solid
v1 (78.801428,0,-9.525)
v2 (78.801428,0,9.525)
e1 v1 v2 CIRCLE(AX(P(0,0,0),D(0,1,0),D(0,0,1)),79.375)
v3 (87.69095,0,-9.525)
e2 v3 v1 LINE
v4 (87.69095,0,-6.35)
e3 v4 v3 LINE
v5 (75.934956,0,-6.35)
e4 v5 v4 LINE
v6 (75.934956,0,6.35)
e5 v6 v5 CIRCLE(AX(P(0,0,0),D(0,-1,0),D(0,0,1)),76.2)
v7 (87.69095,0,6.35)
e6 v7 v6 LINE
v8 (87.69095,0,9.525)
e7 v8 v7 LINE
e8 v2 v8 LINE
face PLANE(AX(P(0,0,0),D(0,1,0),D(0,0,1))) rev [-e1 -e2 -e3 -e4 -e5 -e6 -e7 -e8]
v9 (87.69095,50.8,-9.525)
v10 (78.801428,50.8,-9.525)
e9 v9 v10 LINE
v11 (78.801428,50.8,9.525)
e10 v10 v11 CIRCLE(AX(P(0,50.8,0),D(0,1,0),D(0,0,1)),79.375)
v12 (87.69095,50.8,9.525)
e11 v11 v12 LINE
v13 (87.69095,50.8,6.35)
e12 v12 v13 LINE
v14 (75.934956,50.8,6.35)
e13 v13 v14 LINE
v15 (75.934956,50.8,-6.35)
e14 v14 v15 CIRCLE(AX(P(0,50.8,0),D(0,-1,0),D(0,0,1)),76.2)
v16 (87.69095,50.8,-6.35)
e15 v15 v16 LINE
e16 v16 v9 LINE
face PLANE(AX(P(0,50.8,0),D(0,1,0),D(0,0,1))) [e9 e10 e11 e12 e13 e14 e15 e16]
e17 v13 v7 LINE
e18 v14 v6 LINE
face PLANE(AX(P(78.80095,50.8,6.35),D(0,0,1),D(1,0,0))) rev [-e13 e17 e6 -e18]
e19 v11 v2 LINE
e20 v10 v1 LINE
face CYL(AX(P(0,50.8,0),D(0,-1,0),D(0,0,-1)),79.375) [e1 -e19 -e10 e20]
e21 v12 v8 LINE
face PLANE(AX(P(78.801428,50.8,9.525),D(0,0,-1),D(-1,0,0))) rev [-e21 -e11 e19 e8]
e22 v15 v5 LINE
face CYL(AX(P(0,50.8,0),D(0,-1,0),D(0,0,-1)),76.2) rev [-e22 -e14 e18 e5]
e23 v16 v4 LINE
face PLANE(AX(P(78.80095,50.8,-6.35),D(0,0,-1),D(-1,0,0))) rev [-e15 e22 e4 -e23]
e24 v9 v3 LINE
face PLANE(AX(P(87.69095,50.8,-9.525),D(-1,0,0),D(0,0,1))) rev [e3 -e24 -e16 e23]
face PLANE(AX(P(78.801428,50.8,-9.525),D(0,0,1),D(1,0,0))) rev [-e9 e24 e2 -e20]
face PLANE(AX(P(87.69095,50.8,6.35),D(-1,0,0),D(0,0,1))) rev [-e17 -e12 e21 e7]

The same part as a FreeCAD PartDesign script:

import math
import FreeCAD as App
import Part
import Sketcher
from FreeCAD import Vector
Q = App.Units.Quantity

doc = App.newDocument("Part")
body = doc.addObject("PartDesign::Body", "Body")

# Sketch on XZ plane
sketch1 = doc.addObject("Sketcher::SketchObject", "Sketch")
body.addObject(sketch1)
sketch1.AttachmentSupport = (doc.XZ_Plane, [""])
sketch1.MapMode = "FlatFace"
sketch1.addGeometry([
    Part.LineSegment(Vector(87.7, 9.5, 0), Vector(87.7, 6.3, 0)),  # 0
    Part.LineSegment(Vector(87.7, 6.3, 0), Vector(75.9, 6.3, 0)),  # 1
    Part.ArcOfCircle(Part.Circle(Vector(0, 0, 0), Vector(0, 0, 1), 76.2), math.radians(5), math.radians(355)),  # 2
    Part.LineSegment(Vector(75.9, -6.3, 0), Vector(87.7, -6.3, 0)),  # 3
    Part.LineSegment(Vector(87.7, -6.3, 0), Vector(87.7, -9.5, 0)),  # 4
    Part.LineSegment(Vector(87.7, -9.5, 0), Vector(78.8, -9.5, 0)),  # 5
    Part.ArcOfCircle(Part.Circle(Vector(0, 0, 0), Vector(0, 0, 1), 79.4), math.radians(7), math.radians(353)),  # 6
    Part.LineSegment(Vector(78.8, 9.5, 0), Vector(87.7, 9.5, 0)),  # 7
], False)
sketch1.addConstraint([
    Sketcher.Constraint("Coincident", 0, 2, 1, 1),
    Sketcher.Constraint("Coincident", 1, 2, 2, 1),
    Sketcher.Constraint("Coincident", 2, 2, 3, 1),
    Sketcher.Constraint("Coincident", 3, 2, 4, 1),
    Sketcher.Constraint("Coincident", 4, 2, 5, 1),
    Sketcher.Constraint("Coincident", 5, 2, 6, 2),
    Sketcher.Constraint("Coincident", 6, 1, 7, 1),
    Sketcher.Constraint("Coincident", 7, 2, 0, 1),
    Sketcher.Constraint("Vertical", 0),
    Sketcher.Constraint("Horizontal", 1),
    Sketcher.Constraint("Horizontal", 3),
    Sketcher.Constraint("Vertical", 4),
    Sketcher.Constraint("Horizontal", 5),
    Sketcher.Constraint("Horizontal", 7),
    Sketcher.Constraint("Coincident", 2, 3, -1, 1),
    Sketcher.Constraint("Coincident", 6, 3, -1, 1),
    Sketcher.Constraint("Symmetric", 0, 2, 3, 2, -1),
    Sketcher.Constraint("Vertical", 5, 2, 6, 1),
    Sketcher.Constraint("Radius", 2, Q("3 in")),
    Sketcher.Constraint("Radius", 6, Q("3.125 in")),
    Sketcher.Constraint("DistanceY", 2, 2, 1, 2, Q("0.5 in")),
    Sketcher.Constraint("DistanceY", 0, 2, 0, 1, Q("0.125 in")),
    Sketcher.Constraint("DistanceX", 1, 2, 1, 1, Q("11.755995 mm")),
])
pad1 = doc.addObject("PartDesign::Pad", "Pad")
body.addObject(pad1)
pad1.Profile = sketch1
pad1.Length = Q("2 in")
pad1.Reversed = True

doc.recompute()
